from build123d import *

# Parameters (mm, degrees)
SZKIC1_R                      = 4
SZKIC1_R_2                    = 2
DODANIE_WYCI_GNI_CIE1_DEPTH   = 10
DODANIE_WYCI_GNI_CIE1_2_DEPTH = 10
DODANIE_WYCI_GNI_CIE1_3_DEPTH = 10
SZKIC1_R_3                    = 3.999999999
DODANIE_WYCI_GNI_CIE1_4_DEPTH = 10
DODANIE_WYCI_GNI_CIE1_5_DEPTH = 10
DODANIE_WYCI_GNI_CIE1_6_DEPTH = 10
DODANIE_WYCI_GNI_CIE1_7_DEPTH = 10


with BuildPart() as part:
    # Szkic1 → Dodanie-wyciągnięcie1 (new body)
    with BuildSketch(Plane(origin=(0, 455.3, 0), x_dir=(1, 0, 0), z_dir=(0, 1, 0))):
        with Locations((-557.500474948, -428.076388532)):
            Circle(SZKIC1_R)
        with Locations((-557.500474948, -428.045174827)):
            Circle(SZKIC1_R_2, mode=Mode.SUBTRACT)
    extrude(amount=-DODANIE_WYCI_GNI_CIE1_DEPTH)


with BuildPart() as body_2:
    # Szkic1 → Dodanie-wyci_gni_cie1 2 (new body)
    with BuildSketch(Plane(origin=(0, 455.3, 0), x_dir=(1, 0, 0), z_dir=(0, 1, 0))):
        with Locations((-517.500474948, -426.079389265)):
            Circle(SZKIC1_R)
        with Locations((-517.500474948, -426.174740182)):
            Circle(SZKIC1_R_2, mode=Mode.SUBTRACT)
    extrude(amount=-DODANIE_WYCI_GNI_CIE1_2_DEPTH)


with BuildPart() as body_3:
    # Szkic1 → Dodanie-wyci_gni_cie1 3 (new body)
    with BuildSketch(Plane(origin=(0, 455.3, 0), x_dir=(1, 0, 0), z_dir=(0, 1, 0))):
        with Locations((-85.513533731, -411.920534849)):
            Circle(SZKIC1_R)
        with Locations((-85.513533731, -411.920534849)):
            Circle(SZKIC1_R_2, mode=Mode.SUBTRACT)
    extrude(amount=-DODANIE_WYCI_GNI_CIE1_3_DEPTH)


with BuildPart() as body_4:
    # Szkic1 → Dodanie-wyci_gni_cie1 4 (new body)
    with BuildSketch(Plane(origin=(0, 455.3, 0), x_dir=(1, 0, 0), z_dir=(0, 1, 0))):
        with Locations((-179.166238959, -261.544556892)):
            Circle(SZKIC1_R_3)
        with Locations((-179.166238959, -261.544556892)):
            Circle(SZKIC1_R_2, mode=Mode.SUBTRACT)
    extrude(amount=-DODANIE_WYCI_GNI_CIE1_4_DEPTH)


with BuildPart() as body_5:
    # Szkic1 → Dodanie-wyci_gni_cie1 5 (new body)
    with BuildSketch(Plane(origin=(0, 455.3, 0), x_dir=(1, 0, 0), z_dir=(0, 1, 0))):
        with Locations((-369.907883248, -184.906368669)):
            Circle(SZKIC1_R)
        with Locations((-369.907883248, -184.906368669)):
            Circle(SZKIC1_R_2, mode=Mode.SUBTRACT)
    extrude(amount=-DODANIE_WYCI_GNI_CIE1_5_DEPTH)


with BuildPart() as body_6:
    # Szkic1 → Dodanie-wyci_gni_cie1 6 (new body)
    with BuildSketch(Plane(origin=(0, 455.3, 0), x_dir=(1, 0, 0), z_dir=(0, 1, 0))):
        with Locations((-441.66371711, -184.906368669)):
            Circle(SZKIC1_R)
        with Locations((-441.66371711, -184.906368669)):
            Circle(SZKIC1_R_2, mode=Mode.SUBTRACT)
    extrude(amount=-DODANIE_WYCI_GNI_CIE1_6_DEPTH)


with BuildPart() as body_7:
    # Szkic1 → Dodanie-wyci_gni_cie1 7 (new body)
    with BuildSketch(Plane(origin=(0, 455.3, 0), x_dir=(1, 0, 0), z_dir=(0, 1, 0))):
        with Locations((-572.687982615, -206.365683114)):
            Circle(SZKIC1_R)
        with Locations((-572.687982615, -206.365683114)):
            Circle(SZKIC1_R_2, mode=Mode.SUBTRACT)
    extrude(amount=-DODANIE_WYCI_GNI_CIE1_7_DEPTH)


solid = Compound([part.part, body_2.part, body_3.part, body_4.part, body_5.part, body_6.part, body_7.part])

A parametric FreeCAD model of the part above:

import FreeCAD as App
import Part
import Sketcher
from FreeCAD import Vector
Q = App.Units.Quantity

doc = App.newDocument("Part")
body = doc.addObject("PartDesign::Body", "Body")

sketch1 = body.newObject("Sketcher::SketchObject", "Sketch")
sketch1.AttachmentSupport = (doc.getObject("XZ_Plane"), [""])
sketch1.MapMode = "FlatFace"
sketch1.AttachmentOffset = App.Placement(Vector(0, 0, -455.3), App.Rotation())
sketch1.addGeometry([
    Part.Circle(Vector(-557.5, 428.1, 0), Vector(0, 0, 1), 4),
    Part.Circle(Vector(-557.5, 428, 0), Vector(0, 0, 1), 2),
], False)
sketch1.addConstraint([
    Sketcher.Constraint("Vertical", 0, 3, 1, 3),
    Sketcher.Constraint("Diameter", 0, Q("8 mm")),
    Sketcher.Constraint("Diameter", 1, Q("4 mm")),
    Sketcher.Constraint("DistanceY", -1, 1, 0, 3, Q("428.076389 mm")),
    Sketcher.Constraint("DistanceX", 0, 3, -1, 1, Q("557.500475 mm")),
    Sketcher.Constraint("DistanceY", -1, 1, 1, 3, Q("428.045175 mm")),
])
pad1 = body.newObject("PartDesign::Pad", "Pad")
pad1.Profile = sketch1
pad1.Length = 10
body2 = doc.addObject("PartDesign::Body", "Body001")

sketch2 = body2.newObject("Sketcher::SketchObject", "Sketch001")
sketch2.AttachmentSupport = (doc.getObject("XZ_Plane001"), [""])
sketch2.MapMode = "FlatFace"
sketch2.AttachmentOffset = App.Placement(Vector(0, 0, -455.3), App.Rotation())
sketch2.addGeometry([
    Part.Circle(Vector(-517.5, 426.1, 0), Vector(0, 0, 1), 4),
    Part.Circle(Vector(-517.5, 426.2, 0), Vector(0, 0, 1), 2),
], False)
sketch2.addConstraint([
    Sketcher.Constraint("Vertical", 0, 3, 1, 3),
    Sketcher.Constraint("Diameter", 0, Q("8 mm")),
    Sketcher.Constraint("Diameter", 1, Q("4 mm")),
    Sketcher.Constraint("DistanceY", -1, 1, 0, 3, Q("426.079389 mm")),
    Sketcher.Constraint("DistanceY", -1, 1, 1, 3, Q("426.17474 mm")),
    Sketcher.Constraint("DistanceX", 0, 3, -1, 1, Q("517.500475 mm")),
])
pad2 = body2.newObject("PartDesign::Pad", "Pad001")
pad2.Profile = sketch2
pad2.Length = 10
body3 = doc.addObject("PartDesign::Body", "Body002")

sketch3 = body3.newObject("Sketcher::SketchObject", "Sketch002")
sketch3.AttachmentSupport = (doc.getObject("XZ_Plane002"), [""])
sketch3.MapMode = "FlatFace"
sketch3.AttachmentOffset = App.Placement(Vector(0, 0, -455.3), App.Rotation())
sketch3.addGeometry([
    Part.Circle(Vector(-85.5, 411.9, 0), Vector(0, 0, 1), 4),
    Part.Circle(Vector(-85.5, 411.9, 0), Vector(0, 0, 1), 2),
], False)
sketch3.addConstraint([
    Sketcher.Constraint("Coincident", 1, 3, 0, 3),
    Sketcher.Constraint("Diameter", 0, Q("8 mm")),
    Sketcher.Constraint("Diameter", 1, Q("4 mm")),
    Sketcher.Constraint("DistanceX", 0, 3, -1, 1, Q("85.513534 mm")),
    Sketcher.Constraint("DistanceY", -1, 1, 0, 3, Q("411.920535 mm")),
])
pad3 = body3.newObject("PartDesign::Pad", "Pad002")
pad3.Profile = sketch3
pad3.Length = 10
body4 = doc.addObject("PartDesign::Body", "Body003")

sketch4 = body4.newObject("Sketcher::SketchObject", "Sketch003")
sketch4.AttachmentSupport = (doc.getObject("XZ_Plane003"), [""])
sketch4.MapMode = "FlatFace"
sketch4.AttachmentOffset = App.Placement(Vector(0, 0, -455.3), App.Rotation())
sketch4.addGeometry([
    Part.Circle(Vector(-179.2, 261.5, 0), Vector(0, 0, 1), 4),
    Part.Circle(Vector(-179.2, 261.5, 0), Vector(0, 0, 1), 2),
], False)
sketch4.addConstraint([
    Sketcher.Constraint("Coincident", 1, 3, 0, 3),
    Sketcher.Constraint("Diameter", 0, Q("8 mm")),
    Sketcher.Constraint("Diameter", 1, Q("4 mm")),
    Sketcher.Constraint("DistanceX", 0, 3, -1, 1, Q("179.166239 mm")),
    Sketcher.Constraint("DistanceY", -1, 1, 0, 3, Q("261.544557 mm")),
])
pad4 = body4.newObject("PartDesign::Pad", "Pad003")
pad4.Profile = sketch4
pad4.Length = 10
body5 = doc.addObject("PartDesign::Body", "Body004")

sketch5 = body5.newObject("Sketcher::SketchObject", "Sketch004")
sketch5.AttachmentSupport = (doc.getObject("XZ_Plane004"), [""])
sketch5.MapMode = "FlatFace"
sketch5.AttachmentOffset = App.Placement(Vector(0, 0, -455.3), App.Rotation())
sketch5.addGeometry([
    Part.Circle(Vector(-369.9, 184.9, 0), Vector(0, 0, 1), 4),
    Part.Circle(Vector(-369.9, 184.9, 0), Vector(0, 0, 1), 2),
], False)
sketch5.addConstraint([
    Sketcher.Constraint("Coincident", 1, 3, 0, 3),
    Sketcher.Constraint("Diameter", 0, Q("8 mm")),
    Sketcher.Constraint("Diameter", 1, Q("4 mm")),
    Sketcher.Constraint("DistanceY", -1, 1, 0, 3, Q("184.906369 mm")),
    Sketcher.Constraint("DistanceX", 0, 3, -1, 1, Q("369.907883 mm")),
])
pad5 = body5.newObject("PartDesign::Pad", "Pad004")
pad5.Profile = sketch5
pad5.Length = 10
body6 = doc.addObject("PartDesign::Body", "Body005")

sketch6 = body6.newObject("Sketcher::SketchObject", "Sketch005")
sketch6.AttachmentSupport = (doc.getObject("XZ_Plane005"), [""])
sketch6.MapMode = "FlatFace"
sketch6.AttachmentOffset = App.Placement(Vector(0, 0, -455.3), App.Rotation())
sketch6.addGeometry([
    Part.Circle(Vector(-441.7, 184.9, 0), Vector(0, 0, 1), 4),
    Part.Circle(Vector(-441.7, 184.9, 0), Vector(0, 0, 1), 2),
], False)
sketch6.addConstraint([
    Sketcher.Constraint("Coincident", 1, 3, 0, 3),
    Sketcher.Constraint("Diameter", 0, Q("8 mm")),
    Sketcher.Constraint("Diameter", 1, Q("4 mm")),
    Sketcher.Constraint("DistanceY", -1, 1, 0, 3, Q("184.906369 mm")),
    Sketcher.Constraint("DistanceX", 0, 3, -1, 1, Q("441.663717 mm")),
])
pad6 = body6.newObject("PartDesign::Pad", "Pad005")
pad6.Profile = sketch6
pad6.Length = 10
body7 = doc.addObject("PartDesign::Body", "Body006")

sketch7 = body7.newObject("Sketcher::SketchObject", "Sketch006")
sketch7.AttachmentSupport = (doc.getObject("XZ_Plane006"), [""])
sketch7.MapMode = "FlatFace"
sketch7.AttachmentOffset = App.Placement(Vector(0, 0, -455.3), App.Rotation())
sketch7.addGeometry([
    Part.Circle(Vector(-572.7, 206.4, 0), Vector(0, 0, 1), 4),
    Part.Circle(Vector(-572.7, 206.4, 0), Vector(0, 0, 1), 2),
], False)
sketch7.addConstraint([
    Sketcher.Constraint("Coincident", 1, 3, 0, 3),
    Sketcher.Constraint("Diameter", 0, Q("8 mm")),
    Sketcher.Constraint("Diameter", 1, Q("4 mm")),
    Sketcher.Constraint("DistanceX", 0, 3, -1, 1, Q("572.687983 mm")),
    Sketcher.Constraint("DistanceY", -1, 1, 0, 3, Q("206.365683 mm")),
])
pad7 = body7.newObject("PartDesign::Pad", "Pad006")
pad7.Profile = sketch7
pad7.Length = 10

doc.recompute()
